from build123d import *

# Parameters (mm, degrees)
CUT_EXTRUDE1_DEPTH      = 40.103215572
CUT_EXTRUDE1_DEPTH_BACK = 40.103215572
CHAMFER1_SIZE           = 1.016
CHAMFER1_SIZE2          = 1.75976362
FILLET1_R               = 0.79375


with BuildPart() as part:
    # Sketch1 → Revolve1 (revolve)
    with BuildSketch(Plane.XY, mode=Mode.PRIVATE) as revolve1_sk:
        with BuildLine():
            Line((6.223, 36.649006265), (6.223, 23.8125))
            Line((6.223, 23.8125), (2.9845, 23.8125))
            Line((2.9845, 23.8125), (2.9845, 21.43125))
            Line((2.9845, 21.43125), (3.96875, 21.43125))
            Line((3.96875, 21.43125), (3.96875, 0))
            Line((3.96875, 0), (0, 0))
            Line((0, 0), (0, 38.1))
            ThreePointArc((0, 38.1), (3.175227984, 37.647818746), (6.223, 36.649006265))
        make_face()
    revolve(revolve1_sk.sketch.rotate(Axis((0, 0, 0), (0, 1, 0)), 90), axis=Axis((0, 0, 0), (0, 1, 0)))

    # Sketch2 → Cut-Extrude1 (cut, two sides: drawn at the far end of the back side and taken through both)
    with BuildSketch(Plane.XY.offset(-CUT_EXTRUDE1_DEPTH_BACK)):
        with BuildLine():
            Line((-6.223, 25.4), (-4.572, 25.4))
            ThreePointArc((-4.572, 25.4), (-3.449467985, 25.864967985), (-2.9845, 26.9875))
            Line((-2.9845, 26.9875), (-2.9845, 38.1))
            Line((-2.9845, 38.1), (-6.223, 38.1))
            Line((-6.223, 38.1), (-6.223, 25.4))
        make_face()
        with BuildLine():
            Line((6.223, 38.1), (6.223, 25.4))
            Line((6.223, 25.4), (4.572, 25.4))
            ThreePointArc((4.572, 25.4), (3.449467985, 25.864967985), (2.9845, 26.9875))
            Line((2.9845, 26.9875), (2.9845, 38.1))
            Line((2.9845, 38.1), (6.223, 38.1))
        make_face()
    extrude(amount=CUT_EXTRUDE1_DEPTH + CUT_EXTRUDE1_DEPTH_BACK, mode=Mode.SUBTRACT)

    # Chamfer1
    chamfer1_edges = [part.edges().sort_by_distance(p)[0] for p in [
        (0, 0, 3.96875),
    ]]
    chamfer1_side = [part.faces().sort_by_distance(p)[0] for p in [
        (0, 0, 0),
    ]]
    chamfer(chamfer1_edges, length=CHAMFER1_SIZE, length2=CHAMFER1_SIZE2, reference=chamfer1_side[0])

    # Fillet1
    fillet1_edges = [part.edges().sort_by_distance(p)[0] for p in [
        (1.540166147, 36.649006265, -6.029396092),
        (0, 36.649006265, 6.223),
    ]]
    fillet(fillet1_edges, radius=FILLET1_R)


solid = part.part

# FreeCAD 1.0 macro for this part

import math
import FreeCAD as App
import Part
import Sketcher
from FreeCAD import Vector
Q = App.Units.Quantity


def edges_at(feature, points):
    """Names of the edges that pass closest to the given points."""
    edges = feature.Shape.Edges
    near = lambda p: min(range(len(edges)), key=lambda i: edges[i].distToShape(Part.Vertex(*p))[0])
    return sorted({f"Edge{near(p) + 1}" for p in points})

doc = App.newDocument("Part")
body = doc.addObject("PartDesign::Body", "Body")

# Sketch on XY plane
sketch1 = doc.addObject("Sketcher::SketchObject", "Sketch")
body.addObject(sketch1)
sketch1.AttachmentSupport = (doc.XY_Plane, [""])
sketch1.MapMode = "FlatFace"
sketch1.addGeometry([
    Part.LineSegment(Vector(6.2, 23.8, 0), Vector(6.2, 36.6, 0)),  # 0
    Part.ArcOfCircle(Part.Circle(Vector(-1, 19.8, 0), Vector(0, 0, 1), 18.3), math.radians(67), math.radians(87)),  # 1
    Part.LineSegment(Vector(0, 38.1, 0), Vector(0, 0, 0)),  # 2
    Part.LineSegment(Vector(0, 0, 0), Vector(4, 0, 0)),  # 3
    Part.LineSegment(Vector(4, 0, 0), Vector(4, 21.4, 0)),  # 4
    Part.LineSegment(Vector(4, 21.4, 0), Vector(3, 21.4, 0)),  # 5
    Part.LineSegment(Vector(3, 21.4, 0), Vector(3, 23.8, 0)),  # 6
    Part.LineSegment(Vector(3, 23.8, 0), Vector(6.2, 23.8, 0)),  # 7
], False)
sketch1.addConstraint([
    Sketcher.Constraint("Coincident", 0, 2, 1, 1),
    Sketcher.Constraint("Coincident", 1, 2, 2, 1),
    Sketcher.Constraint("Coincident", 2, 2, 3, 1),
    Sketcher.Constraint("Coincident", 3, 2, 4, 1),
    Sketcher.Constraint("Coincident", 4, 2, 5, 1),
    Sketcher.Constraint("Coincident", 5, 2, 6, 1),
    Sketcher.Constraint("Coincident", 6, 2, 7, 1),
    Sketcher.Constraint("Coincident", 7, 2, 0, 1),
    Sketcher.Constraint("Vertical", 0),
    Sketcher.Constraint("Vertical", 2),
    Sketcher.Constraint("Horizontal", 3),
    Sketcher.Constraint("Vertical", 4),
    Sketcher.Constraint("Horizontal", 5),
    Sketcher.Constraint("Vertical", 6),
    Sketcher.Constraint("Horizontal", 7),
    Sketcher.Constraint("Coincident", 2, 2, -1, 1),
    Sketcher.Constraint("DistanceY", 2, 2, 2, 1, Q("1.5 in")),
    Sketcher.Constraint("DistanceX", 3, 1, 3, 2, Q("0.15625 in")),
    Sketcher.Constraint("DistanceY", 4, 1, 4, 2, Q("0.84375 in")),
    Sketcher.Constraint("DistanceY", 6, 1, 6, 2, Q("0.09375 in")),
    Sketcher.Constraint("DistanceX", 7, 1, 7, 2, Q("0.1275 in")),
    Sketcher.Constraint("DistanceX", -1, 1, 0, 2, Q("0.245 in")),
    Sketcher.Constraint("Radius", 1, Q("18.326482 mm")),
    Sketcher.Constraint("DistanceY", 0, 1, 0, 2, Q("12.836506 mm")),
])
revolution = doc.addObject("PartDesign::Revolution", "Revolution")
body.addObject(revolution)
revolution.Profile = sketch1
revolution.ReferenceAxis = (sketch1, ["V_Axis"])
revolution.Angle = 360

# Sketch on XY plane
sketch2 = doc.addObject("Sketcher::SketchObject", "Sketch001")
body.addObject(sketch2)
sketch2.AttachmentSupport = (doc.XY_Plane, [""])
sketch2.MapMode = "FlatFace"
sketch2.addGeometry([
    Part.LineSegment(Vector(-6.2, 25.4, 0), Vector(-4.6, 25.4, 0)),  # 0
    Part.ArcOfCircle(Part.Circle(Vector(-4.6, 27, 0), Vector(0, 0, 1), 1.6), math.radians(-90), math.radians(0)),  # 1
    Part.LineSegment(Vector(-3, 27, 0), Vector(-3, 38.1, 0)),  # 2
    Part.LineSegment(Vector(-3, 38.1, 0), Vector(-6.2, 38.1, 0)),  # 3
    Part.LineSegment(Vector(-6.2, 38.1, 0), Vector(-6.2, 25.4, 0)),  # 4
    Part.LineSegment(Vector(6.2, 25.4, 0), Vector(6.2, 38.1, 0)),  # 5
    Part.LineSegment(Vector(6.2, 38.1, 0), Vector(3, 38.1, 0)),  # 6
    Part.LineSegment(Vector(3, 38.1, 0), Vector(3, 27, 0)),  # 7
    Part.ArcOfCircle(Part.Circle(Vector(4.6, 27, 0), Vector(0, 0, 1), 1.6), math.radians(180), math.radians(270)),  # 8
    Part.LineSegment(Vector(4.6, 25.4, 0), Vector(6.2, 25.4, 0)),  # 9
], False)
sketch2.addConstraint([
    Sketcher.Constraint("Tangent", 0, 2, 1, 1),
    Sketcher.Constraint("Tangent", 1, 2, 2, 1),
    Sketcher.Constraint("Coincident", 2, 2, 3, 1),
    Sketcher.Constraint("Coincident", 3, 2, 4, 1),
    Sketcher.Constraint("Coincident", 4, 2, 0, 1),
    Sketcher.Constraint("Coincident", 5, 2, 6, 1),
    Sketcher.Constraint("Coincident", 6, 2, 7, 1),
    Sketcher.Constraint("Tangent", 7, 2, 8, 1),
    Sketcher.Constraint("Tangent", 8, 2, 9, 1),
    Sketcher.Constraint("Coincident", 9, 2, 5, 1),
    Sketcher.Constraint("Horizontal", 0),
    Sketcher.Constraint("Vertical", 2),
    Sketcher.Constraint("Horizontal", 3),
    Sketcher.Constraint("Vertical", 4),
    Sketcher.Constraint("Vertical", 5),
    Sketcher.Constraint("Horizontal", 6),
    Sketcher.Constraint("Vertical", 7),
    Sketcher.Constraint("Horizontal", 9),
    Sketcher.Constraint("Equal", 1, 8),
    Sketcher.Constraint("Symmetric", 1, 3, 8, 3, -2),
    Sketcher.Constraint("Symmetric", 3, 2, 5, 2, -2),
    Sketcher.Constraint("DistanceY", 4, 2, 4, 1, Q("0.5 in")),
    Sketcher.Constraint("DistanceY", -1, 1, 0, 2, Q("1 in")),
    Sketcher.Constraint("Radius", 1, Q("0.0625 in")),
    Sketcher.Constraint("DistanceX", 0, 1, 0, 2, Q("0.065 in")),
    Sketcher.Constraint("DistanceX", 1, 3, -1, 1, Q("0.18 in")),
])
pocket1 = doc.addObject("PartDesign::Pocket", "Pocket")
body.addObject(pocket1)
pocket1.Profile = sketch2
pocket1.Type = "ThroughAll"
pocket1.Midplane = True
doc.recompute()

chamfer = doc.addObject("PartDesign::Chamfer", "Chamfer")
body.addObject(chamfer)
chamfer.Base = (pocket1, edges_at(pocket1, [(0, 0, 3.969)]))
chamfer.ChamferType = "Two distances"
chamfer.Size = Q("0.04 in")
chamfer.Size2 = 1.759764
chamfer.FlipDirection = True
doc.recompute()

fillet = doc.addObject("PartDesign::Fillet", "Fillet")
body.addObject(fillet)
fillet.Base = (chamfer, edges_at(chamfer, [(1.54, 36.649, -6.029), (0, 36.649, 6.223)]))
fillet.Radius = Q("0.03125 in")

doc.recompute()
